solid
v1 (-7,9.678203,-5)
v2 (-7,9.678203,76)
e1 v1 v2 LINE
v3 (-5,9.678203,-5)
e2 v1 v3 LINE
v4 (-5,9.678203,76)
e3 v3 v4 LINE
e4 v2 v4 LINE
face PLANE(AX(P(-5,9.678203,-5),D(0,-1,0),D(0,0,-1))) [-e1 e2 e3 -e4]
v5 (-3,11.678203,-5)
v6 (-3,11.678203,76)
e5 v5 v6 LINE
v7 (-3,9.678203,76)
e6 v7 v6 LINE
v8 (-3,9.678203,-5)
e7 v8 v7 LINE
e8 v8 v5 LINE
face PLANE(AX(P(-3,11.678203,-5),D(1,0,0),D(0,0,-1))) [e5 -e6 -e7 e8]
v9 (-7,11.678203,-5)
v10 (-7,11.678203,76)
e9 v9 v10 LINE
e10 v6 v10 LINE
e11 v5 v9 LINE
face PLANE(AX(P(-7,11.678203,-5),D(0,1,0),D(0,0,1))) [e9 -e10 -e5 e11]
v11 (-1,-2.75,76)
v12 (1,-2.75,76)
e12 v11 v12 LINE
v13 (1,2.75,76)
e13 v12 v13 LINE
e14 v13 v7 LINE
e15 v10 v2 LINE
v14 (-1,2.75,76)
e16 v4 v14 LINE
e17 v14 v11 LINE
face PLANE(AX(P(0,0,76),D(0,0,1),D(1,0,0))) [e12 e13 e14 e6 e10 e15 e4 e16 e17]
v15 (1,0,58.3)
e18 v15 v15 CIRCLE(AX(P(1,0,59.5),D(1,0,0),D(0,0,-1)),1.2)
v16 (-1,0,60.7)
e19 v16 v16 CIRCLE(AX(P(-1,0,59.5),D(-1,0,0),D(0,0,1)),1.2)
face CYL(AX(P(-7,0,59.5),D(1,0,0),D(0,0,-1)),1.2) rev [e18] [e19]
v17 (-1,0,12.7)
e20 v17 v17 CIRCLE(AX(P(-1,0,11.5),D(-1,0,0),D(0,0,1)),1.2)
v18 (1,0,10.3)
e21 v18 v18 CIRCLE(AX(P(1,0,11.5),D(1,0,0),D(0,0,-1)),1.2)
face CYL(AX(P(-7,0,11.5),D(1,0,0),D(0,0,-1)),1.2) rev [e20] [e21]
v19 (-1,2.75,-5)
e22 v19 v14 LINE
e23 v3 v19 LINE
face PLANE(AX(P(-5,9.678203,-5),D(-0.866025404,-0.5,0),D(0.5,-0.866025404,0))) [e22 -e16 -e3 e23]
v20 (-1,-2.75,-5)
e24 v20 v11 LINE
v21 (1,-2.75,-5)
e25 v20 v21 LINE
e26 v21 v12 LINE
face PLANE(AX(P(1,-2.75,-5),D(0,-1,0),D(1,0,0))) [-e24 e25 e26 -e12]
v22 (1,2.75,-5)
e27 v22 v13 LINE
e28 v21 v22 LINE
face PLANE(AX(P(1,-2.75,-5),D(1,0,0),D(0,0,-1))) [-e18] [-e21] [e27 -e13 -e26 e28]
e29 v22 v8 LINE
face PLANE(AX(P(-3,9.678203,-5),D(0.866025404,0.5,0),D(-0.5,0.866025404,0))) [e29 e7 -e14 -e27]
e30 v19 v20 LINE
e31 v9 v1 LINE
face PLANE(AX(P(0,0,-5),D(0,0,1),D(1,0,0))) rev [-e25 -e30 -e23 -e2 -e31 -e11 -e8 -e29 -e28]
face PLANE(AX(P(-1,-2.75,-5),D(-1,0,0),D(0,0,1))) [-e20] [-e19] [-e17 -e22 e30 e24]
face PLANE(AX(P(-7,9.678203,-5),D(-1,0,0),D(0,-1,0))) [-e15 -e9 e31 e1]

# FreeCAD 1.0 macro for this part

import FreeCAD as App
import Part
import Sketcher
from FreeCAD import Vector
Q = App.Units.Quantity

doc = App.newDocument("Part")
body = doc.addObject("PartDesign::Body", "Body")

# Sketch on XY plane
sketch1 = body.newObject("Sketcher::SketchObject", "Sketch")
sketch1.AttachmentSupport = (doc.getObject("XY_Plane"), [""])
sketch1.MapMode = "FlatFace"
sketch1.addGeometry([
    Part.LineSegment(Vector(-5, 9.7, 0), Vector(-1, 2.8, 0)),  # 0
    Part.LineSegment(Vector(-1, 2.8, 0), Vector(-1, -2.8, 0)),  # 1
    Part.LineSegment(Vector(-1, -2.8, 0), Vector(1, -2.8, 0)),  # 2
    Part.LineSegment(Vector(1, -2.8, 0), Vector(1, 2.8, 0)),  # 3
    Part.LineSegment(Vector(1, 2.8, 0), Vector(-3, 9.7, 0)),  # 4
    Part.LineSegment(Vector(-3, 9.7, 0), Vector(-3, 11.7, 0)),  # 5
    Part.LineSegment(Vector(-3, 11.7, 0), Vector(-7, 11.7, 0)),  # 6
    Part.LineSegment(Vector(-7, 11.7, 0), Vector(-7, 9.7, 0)),  # 7
    Part.LineSegment(Vector(-7, 9.7, 0), Vector(-5, 9.7, 0)),  # 8
], False)
sketch1.addConstraint([
    Sketcher.Constraint("Coincident", 0, 2, 1, 1),
    Sketcher.Constraint("Coincident", 1, 2, 2, 1),
    Sketcher.Constraint("Coincident", 2, 2, 3, 1),
    Sketcher.Constraint("Coincident", 3, 2, 4, 1),
    Sketcher.Constraint("Coincident", 4, 2, 5, 1),
    Sketcher.Constraint("Coincident", 5, 2, 6, 1),
    Sketcher.Constraint("Coincident", 6, 2, 7, 1),
    Sketcher.Constraint("Coincident", 7, 2, 8, 1),
    Sketcher.Constraint("Coincident", 8, 2, 0, 1),
    Sketcher.Constraint("Vertical", 1),
    Sketcher.Constraint("Horizontal", 2),
    Sketcher.Constraint("Vertical", 3),
    Sketcher.Constraint("Vertical", 5),
    Sketcher.Constraint("Horizontal", 6),
    Sketcher.Constraint("Vertical", 7),
    Sketcher.Constraint("Horizontal", 8),
    Sketcher.Constraint("Symmetric", 0, 2, 2, 2, -1, 1),
    Sketcher.Constraint("Parallel", 0, 4),
    Sketcher.Constraint("Horizontal", 0, 2, 3, 2),
    Sketcher.Constraint("Horizontal", 4, 2, 7, 2),
    Sketcher.Constraint("Equal", 2, 8),
    Sketcher.Constraint("Equal", 8, 5),
    Sketcher.Constraint("DistanceX", 2, 1, 2, 2, Q("2 mm")),
    Sketcher.Constraint("Angle", 0, Q("-60 deg")),
    Sketcher.Constraint("Distance", 0, Q("8 mm")),
    Sketcher.Constraint("DistanceY", 1, 2, 1, 1, Q("5.5 mm")),
])
pad1 = body.newObject("PartDesign::Pad", "Pad")
pad1.Profile = sketch1
pad1.Type = "TwoLengths"
pad1.Length = 76
pad1.Length2 = 5

# Sketch on YZ plane
sketch2 = body.newObject("Sketcher::SketchObject", "Sketch001")
sketch2.AttachmentSupport = (doc.getObject("YZ_Plane"), [""])
sketch2.MapMode = "FlatFace"
sketch2.AttachmentOffset = App.Placement(Vector(0, 0, 1), App.Rotation())
sketch2.addGeometry([
    Part.Circle(Vector(0, 59.5, 0), Vector(0, 0, 1), 1.2),
    Part.Circle(Vector(0, 11.5, 0), Vector(0, 0, 1), 1.2),
], False)
sketch2.addConstraint([
    Sketcher.Constraint("Equal", 0, 1),
    Sketcher.Constraint("PointOnObject", 0, 3, -2),
    Sketcher.Constraint("PointOnObject", 1, 3, -2),
    Sketcher.Constraint("Diameter", 0, Q("2.4 mm")),
    Sketcher.Constraint("DistanceY", 1, 3, 0, 3, Q("48 mm")),
    Sketcher.Constraint("DistanceY", -1, 1, 0, 3, Q("59.5 mm")),
])
pocket1 = body.newObject("PartDesign::Pocket", "Pocket")
pocket1.Profile = sketch2
pocket1.Type = "ThroughAll"

doc.recompute()
